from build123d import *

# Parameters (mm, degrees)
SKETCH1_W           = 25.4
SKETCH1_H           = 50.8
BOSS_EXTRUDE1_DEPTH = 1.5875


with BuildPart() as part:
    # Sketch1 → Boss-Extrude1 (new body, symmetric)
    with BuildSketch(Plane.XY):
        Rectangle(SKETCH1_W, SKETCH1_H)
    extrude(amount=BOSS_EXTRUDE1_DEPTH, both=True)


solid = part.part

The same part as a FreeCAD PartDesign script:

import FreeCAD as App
import Part
import Sketcher
from FreeCAD import Vector
Q = App.Units.Quantity

doc = App.newDocument("Part")
body = doc.addObject("PartDesign::Body", "Body")

sketch1 = body.newObject("Sketcher::SketchObject", "Sketch")
sketch1.AttachmentSupport = (doc.getObject("XY_Plane"), [""])
sketch1.MapMode = "FlatFace"
sketch1.addGeometry(Part.LineSegment(Vector(-12.7, 25.4, 0), Vector(-12.7, -25.4, 0)), False)
sketch1.addGeometry(Part.LineSegment(Vector(-12.7, -25.4, 0), Vector(12.7, -25.4, 0)), False)
sketch1.addGeometry(Part.LineSegment(Vector(12.7, -25.4, 0), Vector(12.7, 25.4, 0)), False)
sketch1.addGeometry(Part.LineSegment(Vector(12.7, 25.4, 0), Vector(-12.7, 25.4, 0)), False)
sketch1.addConstraint(Sketcher.Constraint("Coincident", 0, 2, 1, 1))
sketch1.addConstraint(Sketcher.Constraint("Coincident", 1, 2, 2, 1))
sketch1.addConstraint(Sketcher.Constraint("Coincident", 2, 2, 3, 1))
sketch1.addConstraint(Sketcher.Constraint("Coincident", 3, 2, 0, 1))
sketch1.addConstraint(Sketcher.Constraint("Vertical", 0))
sketch1.addConstraint(Sketcher.Constraint("Horizontal", 1))
sketch1.addConstraint(Sketcher.Constraint("Vertical", 2))
sketch1.addConstraint(Sketcher.Constraint("Horizontal", 3))
sketch1.addConstraint(Sketcher.Constraint("Symmetric", 0, 2, 2, 2, -1, 1))
sketch1.addConstraint(Sketcher.Constraint("DistanceX", 1, 1, 1, 2, Q("1 in")))
sketch1.addConstraint(Sketcher.Constraint("DistanceY", 0, 2, 0, 1, Q("2 in")))
pad1 = body.newObject("PartDesign::Pad", "Pad")
pad1.Profile = sketch1
pad1.Length = Q("0.125 in")
pad1.Midplane = True

doc.recompute()
